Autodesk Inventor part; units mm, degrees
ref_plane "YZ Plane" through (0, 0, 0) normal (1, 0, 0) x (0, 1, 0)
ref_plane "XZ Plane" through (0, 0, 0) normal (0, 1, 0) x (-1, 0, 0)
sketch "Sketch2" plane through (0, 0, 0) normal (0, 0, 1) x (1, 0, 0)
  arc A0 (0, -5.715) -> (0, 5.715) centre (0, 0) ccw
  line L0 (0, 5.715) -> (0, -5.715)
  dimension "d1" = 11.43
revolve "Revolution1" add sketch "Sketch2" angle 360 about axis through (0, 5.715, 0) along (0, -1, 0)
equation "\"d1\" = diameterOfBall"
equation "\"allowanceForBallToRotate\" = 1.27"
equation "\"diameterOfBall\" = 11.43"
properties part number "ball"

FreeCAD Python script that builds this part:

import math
import FreeCAD as App
import Part
import Sketcher
Q = App.Units.Quantity

doc = App.newDocument("Part")
body = doc.addObject("PartDesign::Body", "Body")

sketch1 = body.newObject("Sketcher::SketchObject", "Sketch")
sketch1.AttachmentSupport = (doc.getObject("XY_Plane"), [""])
sketch1.MapMode = "FlatFace"
sketch1.addGeometry(Part.LineSegment(App.Vector(0, 6, 0), App.Vector(0, -6, 0)), False)
sketch1.addGeometry(Part.ArcOfCircle(Part.Circle(App.Vector(0, 0, 0), App.Vector(0, 0, 1), 6), math.radians(-90), math.radians(90)), False)
sketch1.addConstraint(Sketcher.Constraint("Coincident", 0, 1, 1, 2))
sketch1.addConstraint(Sketcher.Constraint("Coincident", 1, 1, 0, 2))
sketch1.addConstraint(Sketcher.Constraint("Vertical", 0))
sketch1.addConstraint(Sketcher.Constraint("Coincident", 1, 3, -1, 1))
sketch1.addConstraint(Sketcher.Constraint("PointOnObject", 0, 1, -2))
sketch1.addConstraint(Sketcher.Constraint("Radius", 1, Q("0.225 in")))
revolution = body.newObject("PartDesign::Revolution", "Revolution")
revolution.Profile = sketch1
revolution.ReferenceAxis = (sketch1, ["V_Axis"])
revolution.Angle = 360

doc.recompute()
